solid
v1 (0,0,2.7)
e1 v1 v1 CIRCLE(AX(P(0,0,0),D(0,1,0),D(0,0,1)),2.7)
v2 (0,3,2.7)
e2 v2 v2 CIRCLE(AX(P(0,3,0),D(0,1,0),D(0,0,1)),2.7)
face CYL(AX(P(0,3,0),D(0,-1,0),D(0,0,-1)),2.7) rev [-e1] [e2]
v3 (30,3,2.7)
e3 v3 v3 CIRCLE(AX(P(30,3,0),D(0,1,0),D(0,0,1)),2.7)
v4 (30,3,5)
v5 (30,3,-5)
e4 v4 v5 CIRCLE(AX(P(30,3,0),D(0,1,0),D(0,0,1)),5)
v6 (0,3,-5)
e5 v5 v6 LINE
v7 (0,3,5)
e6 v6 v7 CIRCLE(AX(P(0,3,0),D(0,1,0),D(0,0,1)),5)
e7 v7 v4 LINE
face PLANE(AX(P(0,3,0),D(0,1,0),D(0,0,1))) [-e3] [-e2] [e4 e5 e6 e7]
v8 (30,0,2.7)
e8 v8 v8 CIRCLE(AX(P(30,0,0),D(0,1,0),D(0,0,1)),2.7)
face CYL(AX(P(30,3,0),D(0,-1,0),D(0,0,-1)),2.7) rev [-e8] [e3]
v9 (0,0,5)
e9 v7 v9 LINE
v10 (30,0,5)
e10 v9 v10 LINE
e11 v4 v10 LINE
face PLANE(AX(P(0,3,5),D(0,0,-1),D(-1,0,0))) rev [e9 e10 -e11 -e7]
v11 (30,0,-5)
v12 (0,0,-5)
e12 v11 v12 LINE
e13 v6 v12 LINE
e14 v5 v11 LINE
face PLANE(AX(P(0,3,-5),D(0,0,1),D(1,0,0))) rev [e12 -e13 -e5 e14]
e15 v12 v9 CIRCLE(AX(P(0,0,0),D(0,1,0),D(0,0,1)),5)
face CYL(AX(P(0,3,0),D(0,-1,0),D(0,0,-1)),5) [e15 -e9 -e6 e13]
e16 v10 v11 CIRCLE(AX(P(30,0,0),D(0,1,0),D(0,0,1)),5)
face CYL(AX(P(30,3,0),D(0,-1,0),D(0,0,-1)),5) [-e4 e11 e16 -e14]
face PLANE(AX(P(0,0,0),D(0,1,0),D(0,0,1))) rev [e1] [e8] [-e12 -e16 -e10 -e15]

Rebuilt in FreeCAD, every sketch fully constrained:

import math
import FreeCAD as App
import Part
import Sketcher
Q = App.Units.Quantity

doc = App.newDocument("Part")
body = doc.addObject("PartDesign::Body", "Body")

sketch1 = body.newObject("Sketcher::SketchObject", "Sketch")
sketch1.AttachmentSupport = (doc.getObject("XZ_Plane"), [""])
sketch1.MapMode = "FlatFace"
sketch1.addGeometry([
    Part.LineSegment(App.Vector(30, -5, 0), App.Vector(0, -5, 0)),
    Part.ArcOfCircle(Part.Circle(App.Vector(0, 0, 0), App.Vector(0, 0, 1), 5), math.radians(90), math.radians(270)),
    Part.LineSegment(App.Vector(0, 5, 0), App.Vector(30, 5, 0)),
    Part.ArcOfCircle(Part.Circle(App.Vector(30, 0, 0), App.Vector(0, 0, 1), 5), math.radians(-90), math.radians(90)),
    Part.Circle(App.Vector(30, 0, 0), App.Vector(0, 0, 1), 2.7),
    Part.Circle(App.Vector(0, 0, 0), App.Vector(0, 0, 1), 2.7),
], False)
sketch1.addConstraint([
    Sketcher.Constraint("Tangent", 0, 2, 1, 2),
    Sketcher.Constraint("Tangent", 1, 1, 2, 1),
    Sketcher.Constraint("Tangent", 2, 2, 3, 2),
    Sketcher.Constraint("Tangent", 3, 1, 0, 1),
    Sketcher.Constraint("Horizontal", 0),
    Sketcher.Constraint("Horizontal", 2),
    Sketcher.Constraint("Coincident", 1, 3, -1, 1),
    Sketcher.Constraint("Coincident", 5, 3, -1, 1),
    Sketcher.Constraint("Coincident", 4, 3, 3, 3),
    Sketcher.Constraint("Equal", 4, 5),
    Sketcher.Constraint("Radius", 1, Q("5 mm")),
    Sketcher.Constraint("Diameter", 4, Q("5.4 mm")),
    Sketcher.Constraint("DistanceX", 0, 2, 0, 1, Q("30 mm")),
])
pad1 = body.newObject("PartDesign::Pad", "Pad")
pad1.Profile = sketch1
pad1.Length = 3
pad1.Reversed = True

doc.recompute()
